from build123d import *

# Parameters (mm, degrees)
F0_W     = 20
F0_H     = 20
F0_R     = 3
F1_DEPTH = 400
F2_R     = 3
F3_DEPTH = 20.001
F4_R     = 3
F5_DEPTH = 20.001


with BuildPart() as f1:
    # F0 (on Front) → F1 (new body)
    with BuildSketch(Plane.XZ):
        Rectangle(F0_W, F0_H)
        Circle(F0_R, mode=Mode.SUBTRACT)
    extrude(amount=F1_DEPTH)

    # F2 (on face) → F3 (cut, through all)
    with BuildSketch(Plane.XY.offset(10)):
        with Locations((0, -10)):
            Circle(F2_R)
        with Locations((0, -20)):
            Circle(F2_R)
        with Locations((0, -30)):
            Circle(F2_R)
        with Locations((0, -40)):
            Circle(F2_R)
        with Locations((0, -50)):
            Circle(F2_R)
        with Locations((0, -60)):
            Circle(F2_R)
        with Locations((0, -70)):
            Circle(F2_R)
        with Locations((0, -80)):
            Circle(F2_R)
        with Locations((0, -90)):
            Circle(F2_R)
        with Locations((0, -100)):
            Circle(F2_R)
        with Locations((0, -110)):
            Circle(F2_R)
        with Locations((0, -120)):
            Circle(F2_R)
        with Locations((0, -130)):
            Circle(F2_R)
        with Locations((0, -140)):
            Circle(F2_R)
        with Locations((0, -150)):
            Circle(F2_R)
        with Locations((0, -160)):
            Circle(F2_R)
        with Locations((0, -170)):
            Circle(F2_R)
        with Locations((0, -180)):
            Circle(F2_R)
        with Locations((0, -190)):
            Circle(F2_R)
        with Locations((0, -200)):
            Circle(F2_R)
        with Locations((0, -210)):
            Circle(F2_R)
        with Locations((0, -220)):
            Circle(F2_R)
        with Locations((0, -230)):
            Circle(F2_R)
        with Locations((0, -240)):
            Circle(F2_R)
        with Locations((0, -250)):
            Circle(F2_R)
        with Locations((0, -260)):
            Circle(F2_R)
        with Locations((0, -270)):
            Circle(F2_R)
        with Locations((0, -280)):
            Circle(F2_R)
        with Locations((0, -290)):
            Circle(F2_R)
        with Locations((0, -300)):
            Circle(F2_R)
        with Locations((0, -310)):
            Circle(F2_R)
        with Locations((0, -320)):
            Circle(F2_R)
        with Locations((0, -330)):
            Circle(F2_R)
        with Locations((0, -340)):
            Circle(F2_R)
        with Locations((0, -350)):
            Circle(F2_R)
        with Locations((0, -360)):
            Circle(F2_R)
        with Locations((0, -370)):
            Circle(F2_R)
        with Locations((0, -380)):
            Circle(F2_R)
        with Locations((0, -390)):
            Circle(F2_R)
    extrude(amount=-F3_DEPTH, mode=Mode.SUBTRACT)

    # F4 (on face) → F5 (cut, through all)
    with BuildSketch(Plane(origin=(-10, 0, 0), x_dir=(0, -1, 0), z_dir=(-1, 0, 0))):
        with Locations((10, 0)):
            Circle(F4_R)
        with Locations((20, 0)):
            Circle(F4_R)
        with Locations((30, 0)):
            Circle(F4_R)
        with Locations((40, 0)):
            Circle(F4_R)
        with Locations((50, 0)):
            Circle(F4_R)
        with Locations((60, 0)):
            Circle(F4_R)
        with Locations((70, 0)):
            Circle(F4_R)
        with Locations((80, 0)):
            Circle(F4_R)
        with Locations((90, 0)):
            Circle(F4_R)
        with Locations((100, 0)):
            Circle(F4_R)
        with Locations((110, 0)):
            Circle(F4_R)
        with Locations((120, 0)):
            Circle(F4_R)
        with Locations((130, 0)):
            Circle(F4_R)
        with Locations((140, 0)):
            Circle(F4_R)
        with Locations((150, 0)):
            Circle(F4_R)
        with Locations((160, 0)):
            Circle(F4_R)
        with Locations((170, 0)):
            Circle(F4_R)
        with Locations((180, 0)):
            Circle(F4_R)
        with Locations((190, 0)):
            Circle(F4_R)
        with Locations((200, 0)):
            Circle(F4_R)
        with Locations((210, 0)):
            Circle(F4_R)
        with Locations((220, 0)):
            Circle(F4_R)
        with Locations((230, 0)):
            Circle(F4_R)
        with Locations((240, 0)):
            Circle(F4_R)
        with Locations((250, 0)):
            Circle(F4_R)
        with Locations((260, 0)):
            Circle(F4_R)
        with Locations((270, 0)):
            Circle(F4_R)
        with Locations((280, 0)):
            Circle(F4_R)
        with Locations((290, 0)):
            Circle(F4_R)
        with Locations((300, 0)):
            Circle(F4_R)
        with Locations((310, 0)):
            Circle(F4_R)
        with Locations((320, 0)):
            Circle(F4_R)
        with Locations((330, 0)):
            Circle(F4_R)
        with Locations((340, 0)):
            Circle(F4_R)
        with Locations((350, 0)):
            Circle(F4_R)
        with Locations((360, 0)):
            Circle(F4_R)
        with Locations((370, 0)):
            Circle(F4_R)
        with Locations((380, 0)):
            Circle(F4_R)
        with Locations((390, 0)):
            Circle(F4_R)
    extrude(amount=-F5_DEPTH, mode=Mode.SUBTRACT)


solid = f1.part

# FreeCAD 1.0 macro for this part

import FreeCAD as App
import Part
import Sketcher

V = App.Vector

doc = App.newDocument("Part")
body = doc.addObject("PartDesign::Body", "Body")

sketch1 = body.newObject("Sketcher::SketchObject", "Sketch")
sketch1.AttachmentSupport = (doc.getObject("XZ_Plane"), [""])
sketch1.MapMode = "FlatFace"
sketch1.addGeometry([
    Part.LineSegment(V(-10, 10, 0), V(-10, -10, 0)),
    Part.LineSegment(V(-10, -10, 0), V(10, -10, 0)),
    Part.LineSegment(V(10, -10, 0), V(10, 10, 0)),
    Part.LineSegment(V(10, 10, 0), V(-10, 10, 0)),
    Part.Circle(V(0, 0, 0), V(0, 0, 1), 3),
], False)
sketch1.addConstraint([
    Sketcher.Constraint("Coincident", 0, 2, 1, 1),
    Sketcher.Constraint("Coincident", 1, 2, 2, 1),
    Sketcher.Constraint("Coincident", 2, 2, 3, 1),
    Sketcher.Constraint("Coincident", 3, 2, 0, 1),
    Sketcher.Constraint("Vertical", 0),
    Sketcher.Constraint("Horizontal", 1),
    Sketcher.Constraint("Vertical", 2),
    Sketcher.Constraint("Horizontal", 3),
    Sketcher.Constraint("Coincident", 4, 3, -1, 1),
    Sketcher.Constraint("Symmetric", 0, 2, 2, 2, -1, 1),
    Sketcher.Constraint("Equal", 3, 0),
    Sketcher.Constraint("Diameter", 4, 6.0),
    Sketcher.Constraint("DistanceX", 1, 1, 1, 2, 20.0),
])
pad1 = body.newObject("PartDesign::Pad", "Pad")
pad1.Profile = sketch1
pad1.Length = 400

sketch2 = body.newObject("Sketcher::SketchObject", "Sketch001")
sketch2.AttachmentSupport = (doc.getObject("XY_Plane"), [""])
sketch2.MapMode = "FlatFace"
sketch2.AttachmentOffset = App.Placement(V(0, 0, 10), App.Rotation())
sketch2.addGeometry([
    Part.Circle(V(0, -10, 0), V(0, 0, 1), 3),
    Part.Circle(V(0, -20, 0), V(0, 0, 1), 3),
    Part.Circle(V(0, -30, 0), V(0, 0, 1), 3),
    Part.Circle(V(0, -40, 0), V(0, 0, 1), 3),
    Part.Circle(V(0, -50, 0), V(0, 0, 1), 3),
    Part.Circle(V(0, -60, 0), V(0, 0, 1), 3),
    Part.Circle(V(0, -70, 0), V(0, 0, 1), 3),
    Part.Circle(V(0, -80, 0), V(0, 0, 1), 3),
    Part.Circle(V(0, -90, 0), V(0, 0, 1), 3),
    Part.Circle(V(0, -100, 0), V(0, 0, 1), 3),
    Part.Circle(V(0, -110, 0), V(0, 0, 1), 3),
    Part.Circle(V(0, -120, 0), V(0, 0, 1), 3),
    Part.Circle(V(0, -130, 0), V(0, 0, 1), 3),
    Part.Circle(V(0, -140, 0), V(0, 0, 1), 3),
    Part.Circle(V(0, -150, 0), V(0, 0, 1), 3),
    Part.Circle(V(0, -160, 0), V(0, 0, 1), 3),
    Part.Circle(V(0, -170, 0), V(0, 0, 1), 3),
    Part.Circle(V(0, -180, 0), V(0, 0, 1), 3),
    Part.Circle(V(0, -190, 0), V(0, 0, 1), 3),
    Part.Circle(V(0, -200, 0), V(0, 0, 1), 3),
    Part.Circle(V(0, -210, 0), V(0, 0, 1), 3),
    Part.Circle(V(0, -220, 0), V(0, 0, 1), 3),
    Part.Circle(V(0, -230, 0), V(0, 0, 1), 3),
    Part.Circle(V(0, -240, 0), V(0, 0, 1), 3),
    Part.Circle(V(0, -250, 0), V(0, 0, 1), 3),
    Part.Circle(V(0, -260, 0), V(0, 0, 1), 3),
    Part.Circle(V(0, -270, 0), V(0, 0, 1), 3),
    Part.Circle(V(0, -280, 0), V(0, 0, 1), 3),
    Part.Circle(V(0, -290, 0), V(0, 0, 1), 3),
    Part.Circle(V(0, -300, 0), V(0, 0, 1), 3),
    Part.Circle(V(0, -310, 0), V(0, 0, 1), 3),
    Part.Circle(V(0, -320, 0), V(0, 0, 1), 3),
    Part.Circle(V(0, -330, 0), V(0, 0, 1), 3),
    Part.Circle(V(0, -340, 0), V(0, 0, 1), 3),
    Part.Circle(V(0, -350, 0), V(0, 0, 1), 3),
    Part.Circle(V(0, -360, 0), V(0, 0, 1), 3),
    Part.Circle(V(0, -370, 0), V(0, 0, 1), 3),
    Part.Circle(V(0, -380, 0), V(0, 0, 1), 3),
    Part.Circle(V(0, -390, 0), V(0, 0, 1), 3),
], False)
sketch2.addConstraint([
    Sketcher.Constraint("Equal", 0, 1),
    Sketcher.Constraint("Equal", 1, 2),
    Sketcher.Constraint("Equal", 2, 3),
    Sketcher.Constraint("Equal", 3, 4),
    Sketcher.Constraint("Equal", 4, 5),
    Sketcher.Constraint("Equal", 5, 6),
    Sketcher.Constraint("Equal", 6, 7),
    Sketcher.Constraint("Equal", 7, 8),
    Sketcher.Constraint("Equal", 8, 9),
    Sketcher.Constraint("Equal", 9, 10),
    Sketcher.Constraint("Equal", 10, 11),
    Sketcher.Constraint("Equal", 11, 12),
    Sketcher.Constraint("Equal", 12, 13),
    Sketcher.Constraint("Equal", 13, 14),
    Sketcher.Constraint("Equal", 14, 15),
    Sketcher.Constraint("Equal", 15, 16),
    Sketcher.Constraint("Equal", 16, 17),
    Sketcher.Constraint("Equal", 17, 18),
    Sketcher.Constraint("Equal", 18, 19),
    Sketcher.Constraint("Equal", 19, 20),
    Sketcher.Constraint("Equal", 20, 21),
    Sketcher.Constraint("Equal", 21, 22),
    Sketcher.Constraint("Equal", 22, 23),
    Sketcher.Constraint("Equal", 23, 24),
    Sketcher.Constraint("Equal", 24, 25),
    Sketcher.Constraint("Equal", 25, 26),
    Sketcher.Constraint("Equal", 26, 27),
    Sketcher.Constraint("Equal", 27, 28),
    Sketcher.Constraint("Equal", 28, 29),
    Sketcher.Constraint("Equal", 29, 30),
    Sketcher.Constraint("Equal", 30, 31),
    Sketcher.Constraint("Equal", 31, 32),
    Sketcher.Constraint("Equal", 32, 33),
    Sketcher.Constraint("Equal", 33, 34),
    Sketcher.Constraint("Equal", 34, 35),
    Sketcher.Constraint("Equal", 35, 36),
    Sketcher.Constraint("Equal", 36, 37),
    Sketcher.Constraint("Equal", 37, 38),
    Sketcher.Constraint("PointOnObject", 0, 3, -2),
    Sketcher.Constraint("PointOnObject", 1, 3, -2),
    Sketcher.Constraint("PointOnObject", 2, 3, -2),
    Sketcher.Constraint("PointOnObject", 3, 3, -2),
    Sketcher.Constraint("PointOnObject", 4, 3, -2),
    Sketcher.Constraint("PointOnObject", 5, 3, -2),
    Sketcher.Constraint("PointOnObject", 6, 3, -2),
    Sketcher.Constraint("PointOnObject", 7, 3, -2),
    Sketcher.Constraint("PointOnObject", 8, 3, -2),
    Sketcher.Constraint("PointOnObject", 9, 3, -2),
    Sketcher.Constraint("PointOnObject", 10, 3, -2),
    Sketcher.Constraint("PointOnObject", 11, 3, -2),
    Sketcher.Constraint("PointOnObject", 12, 3, -2),
    Sketcher.Constraint("PointOnObject", 13, 3, -2),
    Sketcher.Constraint("PointOnObject", 14, 3, -2),
    Sketcher.Constraint("PointOnObject", 15, 3, -2),
    Sketcher.Constraint("PointOnObject", 16, 3, -2),
    Sketcher.Constraint("PointOnObject", 17, 3, -2),
    Sketcher.Constraint("PointOnObject", 18, 3, -2),
    Sketcher.Constraint("PointOnObject", 19, 3, -2),
    Sketcher.Constraint("PointOnObject", 20, 3, -2),
    Sketcher.Constraint("PointOnObject", 21, 3, -2),
    Sketcher.Constraint("PointOnObject", 22, 3, -2),
    Sketcher.Constraint("PointOnObject", 23, 3, -2),
    Sketcher.Constraint("PointOnObject", 24, 3, -2),
    Sketcher.Constraint("PointOnObject", 25, 3, -2),
    Sketcher.Constraint("PointOnObject", 26, 3, -2),
    Sketcher.Constraint("PointOnObject", 27, 3, -2),
    Sketcher.Constraint("PointOnObject", 28, 3, -2),
    Sketcher.Constraint("PointOnObject", 29, 3, -2),
    Sketcher.Constraint("PointOnObject", 30, 3, -2),
    Sketcher.Constraint("PointOnObject", 31, 3, -2),
    Sketcher.Constraint("PointOnObject", 32, 3, -2),
    Sketcher.Constraint("PointOnObject", 33, 3, -2),
    Sketcher.Constraint("PointOnObject", 34, 3, -2),
    Sketcher.Constraint("PointOnObject", 35, 3, -2),
    Sketcher.Constraint("PointOnObject", 36, 3, -2),
    Sketcher.Constraint("PointOnObject", 37, 3, -2),
    Sketcher.Constraint("PointOnObject", 38, 3, -2),
    Sketcher.Constraint("Diameter", 0, 6.0),
    Sketcher.Constraint("DistanceY", 0, 3, -1, 1, 10.0),
    Sketcher.Constraint("DistanceY", 1, 3, -1, 1, 20.0),
    Sketcher.Constraint("DistanceY", 2, 3, -1, 1, 30.0),
    Sketcher.Constraint("DistanceY", 3, 3, -1, 1, 40.0),
    Sketcher.Constraint("DistanceY", 4, 3, -1, 1, 50.0),
    Sketcher.Constraint("DistanceY", 5, 3, -1, 1, 60.0),
    Sketcher.Constraint("DistanceY", 6, 3, -1, 1, 70.0),
    Sketcher.Constraint("DistanceY", 7, 3, -1, 1, 80.0),
    Sketcher.Constraint("DistanceY", 8, 3, -1, 1, 90.0),
    Sketcher.Constraint("DistanceY", 9, 3, -1, 1, 100.0),
    Sketcher.Constraint("DistanceY", 10, 3, -1, 1, 110.0),
    Sketcher.Constraint("DistanceY", 11, 3, -1, 1, 120.0),
    Sketcher.Constraint("DistanceY", 12, 3, -1, 1, 130.0),
    Sketcher.Constraint("DistanceY", 13, 3, -1, 1, 140.0),
    Sketcher.Constraint("DistanceY", 14, 3, -1, 1, 150.0),
    Sketcher.Constraint("DistanceY", 15, 3, -1, 1, 160.0),
    Sketcher.Constraint("DistanceY", 16, 3, -1, 1, 170.0),
    Sketcher.Constraint("DistanceY", 17, 3, -1, 1, 180.0),
    Sketcher.Constraint("DistanceY", 18, 3, -1, 1, 190.0),
    Sketcher.Constraint("DistanceY", 19, 3, -1, 1, 200.0),
    Sketcher.Constraint("DistanceY", 20, 3, -1, 1, 210.0),
    Sketcher.Constraint("DistanceY", 21, 3, -1, 1, 220.0),
    Sketcher.Constraint("DistanceY", 22, 3, -1, 1, 230.0),
    Sketcher.Constraint("DistanceY", 23, 3, -1, 1, 240.0),
    Sketcher.Constraint("DistanceY", 24, 3, -1, 1, 250.0),
    Sketcher.Constraint("DistanceY", 25, 3, -1, 1, 260.0),
    Sketcher.Constraint("DistanceY", 26, 3, -1, 1, 270.0),
    Sketcher.Constraint("DistanceY", 27, 3, -1, 1, 280.0),
    Sketcher.Constraint("DistanceY", 28, 3, -1, 1, 290.0),
    Sketcher.Constraint("DistanceY", 29, 3, -1, 1, 300.0),
    Sketcher.Constraint("DistanceY", 30, 3, -1, 1, 310.0),
    Sketcher.Constraint("DistanceY", 31, 3, -1, 1, 320.0),
    Sketcher.Constraint("DistanceY", 32, 3, -1, 1, 330.0),
    Sketcher.Constraint("DistanceY", 33, 3, -1, 1, 340.0),
    Sketcher.Constraint("DistanceY", 34, 3, -1, 1, 350.0),
    Sketcher.Constraint("DistanceY", 35, 3, -1, 1, 360.0),
    Sketcher.Constraint("DistanceY", 36, 3, -1, 1, 370.0),
    Sketcher.Constraint("DistanceY", 37, 3, -1, 1, 380.0),
    Sketcher.Constraint("DistanceY", 38, 3, -1, 1, 390.0),
])
pocket1 = body.newObject("PartDesign::Pocket", "Pocket")
pocket1.Profile = sketch2
pocket1.Type = "ThroughAll"

sketch3 = body.newObject("Sketcher::SketchObject", "Sketch002")
sketch3.AttachmentSupport = (doc.getObject("YZ_Plane"), [""])
sketch3.MapMode = "FlatFace"
sketch3.AttachmentOffset = App.Placement(V(0, 0, -10), App.Rotation())
sketch3.addGeometry([
    Part.Circle(V(-10, 0, 0), V(0, 0, 1), 3),
    Part.Circle(V(-20, 0, 0), V(0, 0, 1), 3),
    Part.Circle(V(-30, 0, 0), V(0, 0, 1), 3),
    Part.Circle(V(-40, 0, 0), V(0, 0, 1), 3),
    Part.Circle(V(-50, 0, 0), V(0, 0, 1), 3),
    Part.Circle(V(-60, 0, 0), V(0, 0, 1), 3),
    Part.Circle(V(-70, 0, 0), V(0, 0, 1), 3),
    Part.Circle(V(-80, 0, 0), V(0, 0, 1), 3),
    Part.Circle(V(-90, 0, 0), V(0, 0, 1), 3),
    Part.Circle(V(-100, 0, 0), V(0, 0, 1), 3),
    Part.Circle(V(-110, 0, 0), V(0, 0, 1), 3),
    Part.Circle(V(-120, 0, 0), V(0, 0, 1), 3),
    Part.Circle(V(-130, 0, 0), V(0, 0, 1), 3),
    Part.Circle(V(-140, 0, 0), V(0, 0, 1), 3),
    Part.Circle(V(-150, 0, 0), V(0, 0, 1), 3),
    Part.Circle(V(-160, 0, 0), V(0, 0, 1), 3),
    Part.Circle(V(-170, 0, 0), V(0, 0, 1), 3),
    Part.Circle(V(-180, 0, 0), V(0, 0, 1), 3),
    Part.Circle(V(-190, 0, 0), V(0, 0, 1), 3),
    Part.Circle(V(-200, 0, 0), V(0, 0, 1), 3),
    Part.Circle(V(-210, 0, 0), V(0, 0, 1), 3),
    Part.Circle(V(-220, 0, 0), V(0, 0, 1), 3),
    Part.Circle(V(-230, 0, 0), V(0, 0, 1), 3),
    Part.Circle(V(-240, 0, 0), V(0, 0, 1), 3),
    Part.Circle(V(-250, 0, 0), V(0, 0, 1), 3),
    Part.Circle(V(-260, 0, 0), V(0, 0, 1), 3),
    Part.Circle(V(-270, 0, 0), V(0, 0, 1), 3),
    Part.Circle(V(-280, 0, 0), V(0, 0, 1), 3),
    Part.Circle(V(-290, 0, 0), V(0, 0, 1), 3),
    Part.Circle(V(-300, 0, 0), V(0, 0, 1), 3),
    Part.Circle(V(-310, 0, 0), V(0, 0, 1), 3),
    Part.Circle(V(-320, 0, 0), V(0, 0, 1), 3),
    Part.Circle(V(-330, 0, 0), V(0, 0, 1), 3),
    Part.Circle(V(-340, 0, 0), V(0, 0, 1), 3),
    Part.Circle(V(-350, 0, 0), V(0, 0, 1), 3),
    Part.Circle(V(-360, 0, 0), V(0, 0, 1), 3),
    Part.Circle(V(-370, 0, 0), V(0, 0, 1), 3),
    Part.Circle(V(-380, 0, 0), V(0, 0, 1), 3),
    Part.Circle(V(-390, 0, 0), V(0, 0, 1), 3),
], False)
sketch3.addConstraint([
    Sketcher.Constraint("Equal", 0, 1),
    Sketcher.Constraint("Equal", 1, 2),
    Sketcher.Constraint("Equal", 2, 3),
    Sketcher.Constraint("Equal", 3, 4),
    Sketcher.Constraint("Equal", 4, 5),
    Sketcher.Constraint("Equal", 5, 6),
    Sketcher.Constraint("Equal", 6, 7),
    Sketcher.Constraint("Equal", 7, 8),
    Sketcher.Constraint("Equal", 8, 9),
    Sketcher.Constraint("Equal", 9, 10),
    Sketcher.Constraint("Equal", 10, 11),
    Sketcher.Constraint("Equal", 11, 12),
    Sketcher.Constraint("Equal", 12, 13),
    Sketcher.Constraint("Equal", 13, 14),
    Sketcher.Constraint("Equal", 14, 15),
    Sketcher.Constraint("Equal", 15, 16),
    Sketcher.Constraint("Equal", 16, 17),
    Sketcher.Constraint("Equal", 17, 18),
    Sketcher.Constraint("Equal", 18, 19),
    Sketcher.Constraint("Equal", 19, 20),
    Sketcher.Constraint("Equal", 20, 21),
    Sketcher.Constraint("Equal", 21, 22),
    Sketcher.Constraint("Equal", 22, 23),
    Sketcher.Constraint("Equal", 23, 24),
    Sketcher.Constraint("Equal", 24, 25),
    Sketcher.Constraint("Equal", 25, 26),
    Sketcher.Constraint("Equal", 26, 27),
    Sketcher.Constraint("Equal", 27, 28),
    Sketcher.Constraint("Equal", 28, 29),
    Sketcher.Constraint("Equal", 29, 30),
    Sketcher.Constraint("Equal", 30, 31),
    Sketcher.Constraint("Equal", 31, 32),
    Sketcher.Constraint("Equal", 32, 33),
    Sketcher.Constraint("Equal", 33, 34),
    Sketcher.Constraint("Equal", 34, 35),
    Sketcher.Constraint("Equal", 35, 36),
    Sketcher.Constraint("Equal", 36, 37),
    Sketcher.Constraint("Equal", 37, 38),
    Sketcher.Constraint("PointOnObject", 0, 3, -1),
    Sketcher.Constraint("PointOnObject", 1, 3, -1),
    Sketcher.Constraint("PointOnObject", 2, 3, -1),
    Sketcher.Constraint("PointOnObject", 3, 3, -1),
    Sketcher.Constraint("PointOnObject", 4, 3, -1),
    Sketcher.Constraint("PointOnObject", 5, 3, -1),
    Sketcher.Constraint("PointOnObject", 6, 3, -1),
    Sketcher.Constraint("PointOnObject", 7, 3, -1),
    Sketcher.Constraint("PointOnObject", 8, 3, -1),
    Sketcher.Constraint("PointOnObject", 9, 3, -1),
    Sketcher.Constraint("PointOnObject", 10, 3, -1),
    Sketcher.Constraint("PointOnObject", 11, 3, -1),
    Sketcher.Constraint("PointOnObject", 12, 3, -1),
    Sketcher.Constraint("PointOnObject", 13, 3, -1),
    Sketcher.Constraint("PointOnObject", 14, 3, -1),
    Sketcher.Constraint("PointOnObject", 15, 3, -1),
    Sketcher.Constraint("PointOnObject", 16, 3, -1),
    Sketcher.Constraint("PointOnObject", 17, 3, -1),
    Sketcher.Constraint("PointOnObject", 18, 3, -1),
    Sketcher.Constraint("PointOnObject", 19, 3, -1),
    Sketcher.Constraint("PointOnObject", 20, 3, -1),
    Sketcher.Constraint("PointOnObject", 21, 3, -1),
    Sketcher.Constraint("PointOnObject", 22, 3, -1),
    Sketcher.Constraint("PointOnObject", 23, 3, -1),
    Sketcher.Constraint("PointOnObject", 24, 3, -1),
    Sketcher.Constraint("PointOnObject", 25, 3, -1),
    Sketcher.Constraint("PointOnObject", 26, 3, -1),
    Sketcher.Constraint("PointOnObject", 27, 3, -1),
    Sketcher.Constraint("PointOnObject", 28, 3, -1),
    Sketcher.Constraint("PointOnObject", 29, 3, -1),
    Sketcher.Constraint("PointOnObject", 30, 3, -1),
    Sketcher.Constraint("PointOnObject", 31, 3, -1),
    Sketcher.Constraint("PointOnObject", 32, 3, -1),
    Sketcher.Constraint("PointOnObject", 33, 3, -1),
    Sketcher.Constraint("PointOnObject", 34, 3, -1),
    Sketcher.Constraint("PointOnObject", 35, 3, -1),
    Sketcher.Constraint("PointOnObject", 36, 3, -1),
    Sketcher.Constraint("PointOnObject", 37, 3, -1),
    Sketcher.Constraint("PointOnObject", 38, 3, -1),
    Sketcher.Constraint("Diameter", 0, 6.0),
    Sketcher.Constraint("DistanceX", 0, 3, -1, 1, 10.0),
    Sketcher.Constraint("DistanceX", 1, 3, -1, 1, 20.0),
    Sketcher.Constraint("DistanceX", 2, 3, -1, 1, 30.0),
    Sketcher.Constraint("DistanceX", 3, 3, -1, 1, 40.0),
    Sketcher.Constraint("DistanceX", 4, 3, -1, 1, 50.0),
    Sketcher.Constraint("DistanceX", 5, 3, -1, 1, 60.0),
    Sketcher.Constraint("DistanceX", 6, 3, -1, 1, 70.0),
    Sketcher.Constraint("DistanceX", 7, 3, -1, 1, 80.0),
    Sketcher.Constraint("DistanceX", 8, 3, -1, 1, 90.0),
    Sketcher.Constraint("DistanceX", 9, 3, -1, 1, 100.0),
    Sketcher.Constraint("DistanceX", 10, 3, -1, 1, 110.0),
    Sketcher.Constraint("DistanceX", 11, 3, -1, 1, 120.0),
    Sketcher.Constraint("DistanceX", 12, 3, -1, 1, 130.0),
    Sketcher.Constraint("DistanceX", 13, 3, -1, 1, 140.0),
    Sketcher.Constraint("DistanceX", 14, 3, -1, 1, 150.0),
    Sketcher.Constraint("DistanceX", 15, 3, -1, 1, 160.0),
    Sketcher.Constraint("DistanceX", 16, 3, -1, 1, 170.0),
    Sketcher.Constraint("DistanceX", 17, 3, -1, 1, 180.0),
    Sketcher.Constraint("DistanceX", 18, 3, -1, 1, 190.0),
    Sketcher.Constraint("DistanceX", 19, 3, -1, 1, 200.0),
    Sketcher.Constraint("DistanceX", 20, 3, -1, 1, 210.0),
    Sketcher.Constraint("DistanceX", 21, 3, -1, 1, 220.0),
    Sketcher.Constraint("DistanceX", 22, 3, -1, 1, 230.0),
    Sketcher.Constraint("DistanceX", 23, 3, -1, 1, 240.0),
    Sketcher.Constraint("DistanceX", 24, 3, -1, 1, 250.0),
    Sketcher.Constraint("DistanceX", 25, 3, -1, 1, 260.0),
    Sketcher.Constraint("DistanceX", 26, 3, -1, 1, 270.0),
    Sketcher.Constraint("DistanceX", 27, 3, -1, 1, 280.0),
    Sketcher.Constraint("DistanceX", 28, 3, -1, 1, 290.0),
    Sketcher.Constraint("DistanceX", 29, 3, -1, 1, 300.0),
    Sketcher.Constraint("DistanceX", 30, 3, -1, 1, 310.0),
    Sketcher.Constraint("DistanceX", 31, 3, -1, 1, 320.0),
    Sketcher.Constraint("DistanceX", 32, 3, -1, 1, 330.0),
    Sketcher.Constraint("DistanceX", 33, 3, -1, 1, 340.0),
    Sketcher.Constraint("DistanceX", 34, 3, -1, 1, 350.0),
    Sketcher.Constraint("DistanceX", 35, 3, -1, 1, 360.0),
    Sketcher.Constraint("DistanceX", 36, 3, -1, 1, 370.0),
    Sketcher.Constraint("DistanceX", 37, 3, -1, 1, 380.0),
    Sketcher.Constraint("DistanceX", 38, 3, -1, 1, 390.0),
])
pocket2 = body.newObject("PartDesign::Pocket", "Pocket001")
pocket2.Profile = sketch3
pocket2.Type = "ThroughAll"
pocket2.Reversed = True

doc.recompute()
